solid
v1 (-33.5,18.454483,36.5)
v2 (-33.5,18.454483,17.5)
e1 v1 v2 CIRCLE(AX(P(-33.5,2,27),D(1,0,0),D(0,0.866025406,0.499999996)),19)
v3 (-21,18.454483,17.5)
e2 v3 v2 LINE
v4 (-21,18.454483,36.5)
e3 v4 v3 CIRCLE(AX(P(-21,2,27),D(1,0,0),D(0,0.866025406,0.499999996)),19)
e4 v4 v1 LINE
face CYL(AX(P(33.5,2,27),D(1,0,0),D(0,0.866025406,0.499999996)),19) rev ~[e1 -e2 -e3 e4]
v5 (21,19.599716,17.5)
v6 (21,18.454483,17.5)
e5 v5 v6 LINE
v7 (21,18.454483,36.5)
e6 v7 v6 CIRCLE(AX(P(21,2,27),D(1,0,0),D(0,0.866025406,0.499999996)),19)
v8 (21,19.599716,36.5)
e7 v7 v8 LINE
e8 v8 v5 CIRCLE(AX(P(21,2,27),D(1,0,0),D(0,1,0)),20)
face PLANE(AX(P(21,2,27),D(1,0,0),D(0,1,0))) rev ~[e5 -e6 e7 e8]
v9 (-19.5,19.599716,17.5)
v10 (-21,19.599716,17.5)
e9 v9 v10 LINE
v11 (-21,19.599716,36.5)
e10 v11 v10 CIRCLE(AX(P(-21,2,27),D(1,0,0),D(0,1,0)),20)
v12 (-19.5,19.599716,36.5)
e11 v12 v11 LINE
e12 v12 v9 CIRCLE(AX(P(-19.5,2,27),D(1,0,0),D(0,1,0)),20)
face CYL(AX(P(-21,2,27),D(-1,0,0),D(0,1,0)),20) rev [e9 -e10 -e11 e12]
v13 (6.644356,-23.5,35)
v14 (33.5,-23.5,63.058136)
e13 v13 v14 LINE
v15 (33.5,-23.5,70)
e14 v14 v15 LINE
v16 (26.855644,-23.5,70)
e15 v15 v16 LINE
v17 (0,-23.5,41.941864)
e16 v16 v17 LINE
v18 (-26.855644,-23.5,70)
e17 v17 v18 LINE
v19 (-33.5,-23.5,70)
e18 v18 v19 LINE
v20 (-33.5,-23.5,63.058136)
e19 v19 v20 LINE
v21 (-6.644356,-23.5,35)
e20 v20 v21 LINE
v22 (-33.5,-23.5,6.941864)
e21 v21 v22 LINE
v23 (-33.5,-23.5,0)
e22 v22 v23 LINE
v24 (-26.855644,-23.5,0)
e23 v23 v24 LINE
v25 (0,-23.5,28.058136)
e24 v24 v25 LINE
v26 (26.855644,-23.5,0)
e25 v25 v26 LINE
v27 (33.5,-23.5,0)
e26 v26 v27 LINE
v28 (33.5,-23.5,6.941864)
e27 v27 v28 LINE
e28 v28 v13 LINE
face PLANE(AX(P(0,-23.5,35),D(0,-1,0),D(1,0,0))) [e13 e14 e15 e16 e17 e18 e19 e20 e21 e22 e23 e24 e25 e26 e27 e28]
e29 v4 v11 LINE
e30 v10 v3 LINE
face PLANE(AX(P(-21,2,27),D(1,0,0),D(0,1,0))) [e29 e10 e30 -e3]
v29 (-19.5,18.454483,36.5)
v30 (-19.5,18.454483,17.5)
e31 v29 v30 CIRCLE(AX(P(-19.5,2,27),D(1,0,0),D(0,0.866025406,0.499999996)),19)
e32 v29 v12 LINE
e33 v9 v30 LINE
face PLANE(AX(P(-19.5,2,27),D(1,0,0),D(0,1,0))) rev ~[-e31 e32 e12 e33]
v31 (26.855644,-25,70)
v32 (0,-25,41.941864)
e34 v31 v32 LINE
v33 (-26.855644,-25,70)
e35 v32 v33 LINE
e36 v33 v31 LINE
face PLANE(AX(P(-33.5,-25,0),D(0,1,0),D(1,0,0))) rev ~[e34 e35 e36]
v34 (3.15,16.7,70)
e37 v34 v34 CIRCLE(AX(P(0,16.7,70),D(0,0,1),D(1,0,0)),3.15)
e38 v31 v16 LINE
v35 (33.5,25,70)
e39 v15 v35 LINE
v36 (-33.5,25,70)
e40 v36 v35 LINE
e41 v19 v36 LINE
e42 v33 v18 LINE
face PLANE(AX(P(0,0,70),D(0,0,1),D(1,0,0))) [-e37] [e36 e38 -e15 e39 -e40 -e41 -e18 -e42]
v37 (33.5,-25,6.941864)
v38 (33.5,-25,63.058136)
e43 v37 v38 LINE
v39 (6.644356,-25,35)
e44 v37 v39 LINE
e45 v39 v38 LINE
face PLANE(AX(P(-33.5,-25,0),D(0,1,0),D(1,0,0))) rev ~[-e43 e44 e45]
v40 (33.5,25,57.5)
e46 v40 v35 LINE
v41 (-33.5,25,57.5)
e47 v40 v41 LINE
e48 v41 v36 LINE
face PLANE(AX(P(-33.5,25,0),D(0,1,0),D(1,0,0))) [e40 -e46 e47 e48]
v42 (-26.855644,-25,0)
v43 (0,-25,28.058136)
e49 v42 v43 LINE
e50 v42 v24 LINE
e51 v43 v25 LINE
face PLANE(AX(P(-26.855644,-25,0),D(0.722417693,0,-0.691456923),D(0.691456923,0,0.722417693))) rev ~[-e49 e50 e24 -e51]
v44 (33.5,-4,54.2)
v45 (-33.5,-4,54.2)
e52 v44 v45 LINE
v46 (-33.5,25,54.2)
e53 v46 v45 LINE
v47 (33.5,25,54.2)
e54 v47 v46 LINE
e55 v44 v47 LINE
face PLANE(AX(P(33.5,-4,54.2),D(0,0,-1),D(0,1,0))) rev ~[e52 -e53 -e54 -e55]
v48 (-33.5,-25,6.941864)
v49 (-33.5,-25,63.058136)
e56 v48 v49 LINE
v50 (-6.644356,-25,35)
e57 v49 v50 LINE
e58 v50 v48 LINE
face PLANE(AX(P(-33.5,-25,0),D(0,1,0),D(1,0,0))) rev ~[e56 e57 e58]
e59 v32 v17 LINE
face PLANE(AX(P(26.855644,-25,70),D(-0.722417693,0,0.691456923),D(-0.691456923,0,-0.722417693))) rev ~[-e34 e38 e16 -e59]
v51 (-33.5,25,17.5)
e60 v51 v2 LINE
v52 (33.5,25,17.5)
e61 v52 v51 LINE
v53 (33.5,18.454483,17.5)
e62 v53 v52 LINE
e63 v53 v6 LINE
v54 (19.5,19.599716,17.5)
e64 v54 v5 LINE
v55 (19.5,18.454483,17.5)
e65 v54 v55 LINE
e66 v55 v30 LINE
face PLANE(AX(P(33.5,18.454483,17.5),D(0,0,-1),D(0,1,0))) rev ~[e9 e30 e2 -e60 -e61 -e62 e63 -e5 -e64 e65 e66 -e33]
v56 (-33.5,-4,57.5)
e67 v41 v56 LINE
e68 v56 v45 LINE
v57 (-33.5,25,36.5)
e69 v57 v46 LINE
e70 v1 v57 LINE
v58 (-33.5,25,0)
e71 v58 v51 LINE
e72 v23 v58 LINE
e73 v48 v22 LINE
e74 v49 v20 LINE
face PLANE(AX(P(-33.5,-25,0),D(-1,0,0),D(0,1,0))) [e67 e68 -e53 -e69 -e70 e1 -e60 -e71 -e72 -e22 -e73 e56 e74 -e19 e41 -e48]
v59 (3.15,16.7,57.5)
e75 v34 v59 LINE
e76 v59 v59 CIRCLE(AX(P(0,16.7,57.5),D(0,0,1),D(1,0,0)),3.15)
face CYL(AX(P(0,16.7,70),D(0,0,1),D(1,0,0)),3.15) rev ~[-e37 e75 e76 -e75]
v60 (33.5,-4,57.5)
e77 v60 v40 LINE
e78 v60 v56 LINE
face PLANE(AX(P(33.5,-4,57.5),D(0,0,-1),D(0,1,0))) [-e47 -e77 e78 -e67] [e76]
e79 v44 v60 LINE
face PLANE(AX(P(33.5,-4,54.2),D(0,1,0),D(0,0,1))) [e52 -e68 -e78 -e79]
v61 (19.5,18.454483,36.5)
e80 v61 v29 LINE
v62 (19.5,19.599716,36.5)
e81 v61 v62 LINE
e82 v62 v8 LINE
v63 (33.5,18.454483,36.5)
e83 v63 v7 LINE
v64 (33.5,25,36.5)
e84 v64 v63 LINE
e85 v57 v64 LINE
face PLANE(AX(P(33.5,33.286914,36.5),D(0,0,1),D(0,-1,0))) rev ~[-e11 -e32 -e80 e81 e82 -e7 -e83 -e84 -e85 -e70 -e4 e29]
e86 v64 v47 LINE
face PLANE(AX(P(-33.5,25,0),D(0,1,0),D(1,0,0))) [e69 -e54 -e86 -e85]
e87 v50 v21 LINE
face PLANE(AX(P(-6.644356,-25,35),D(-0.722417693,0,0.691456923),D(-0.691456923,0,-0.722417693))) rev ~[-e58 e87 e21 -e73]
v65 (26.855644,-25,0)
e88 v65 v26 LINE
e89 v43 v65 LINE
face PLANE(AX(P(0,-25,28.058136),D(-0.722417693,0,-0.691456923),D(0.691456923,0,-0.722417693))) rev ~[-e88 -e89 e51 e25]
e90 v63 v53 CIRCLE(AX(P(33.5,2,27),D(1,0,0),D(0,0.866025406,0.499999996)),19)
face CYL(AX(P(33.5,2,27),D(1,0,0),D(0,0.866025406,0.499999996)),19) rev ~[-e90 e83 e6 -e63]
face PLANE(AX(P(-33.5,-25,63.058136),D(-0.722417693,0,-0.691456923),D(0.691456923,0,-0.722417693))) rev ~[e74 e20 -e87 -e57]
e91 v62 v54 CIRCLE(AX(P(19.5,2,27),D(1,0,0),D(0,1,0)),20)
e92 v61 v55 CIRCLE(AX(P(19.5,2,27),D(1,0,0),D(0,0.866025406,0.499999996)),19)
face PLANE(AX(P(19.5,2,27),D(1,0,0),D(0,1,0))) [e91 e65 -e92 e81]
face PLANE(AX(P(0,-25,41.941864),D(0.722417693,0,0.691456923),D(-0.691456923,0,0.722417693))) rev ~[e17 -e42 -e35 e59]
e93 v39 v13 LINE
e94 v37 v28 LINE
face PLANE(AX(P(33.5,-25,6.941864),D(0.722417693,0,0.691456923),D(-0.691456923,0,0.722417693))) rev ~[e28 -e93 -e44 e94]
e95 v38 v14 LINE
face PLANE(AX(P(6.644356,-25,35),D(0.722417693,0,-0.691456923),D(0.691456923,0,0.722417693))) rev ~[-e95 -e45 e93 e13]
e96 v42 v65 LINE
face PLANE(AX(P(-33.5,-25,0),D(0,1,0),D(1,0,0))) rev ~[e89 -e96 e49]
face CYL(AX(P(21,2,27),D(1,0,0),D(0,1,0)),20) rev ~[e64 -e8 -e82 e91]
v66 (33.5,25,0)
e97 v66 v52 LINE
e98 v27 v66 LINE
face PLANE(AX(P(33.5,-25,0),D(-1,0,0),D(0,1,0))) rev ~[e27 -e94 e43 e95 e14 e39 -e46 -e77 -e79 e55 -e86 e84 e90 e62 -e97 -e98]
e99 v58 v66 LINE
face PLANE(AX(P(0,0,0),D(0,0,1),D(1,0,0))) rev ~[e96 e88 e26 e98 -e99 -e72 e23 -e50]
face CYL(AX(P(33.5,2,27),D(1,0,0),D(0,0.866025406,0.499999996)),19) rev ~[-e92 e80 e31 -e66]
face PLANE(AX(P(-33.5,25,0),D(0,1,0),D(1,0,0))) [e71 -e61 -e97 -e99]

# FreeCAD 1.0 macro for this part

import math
import FreeCAD as App
import Part
import Sketcher

V = App.Vector
Q = App.Units.Quantity

doc = App.newDocument("Part")
body = doc.addObject("PartDesign::Body", "Body")

sketch1 = body.newObject("Sketcher::SketchObject", "Sketch")
sketch1.AttachmentSupport = (doc.getObject("XY_Plane"), [""])
sketch1.MapMode = "FlatFace"
sketch1.addGeometry([
    Part.LineSegment(V(-34, 25, 0), V(-34, -25, 0)),
    Part.LineSegment(V(-34, -25, 0), V(34, -25, 0)),
    Part.LineSegment(V(34, -25, 0), V(34, 25, 0)),
    Part.LineSegment(V(34, 25, 0), V(-34, 25, 0)),
], False)
sketch1.addConstraint([
    Sketcher.Constraint("Coincident", 0, 2, 1, 1),
    Sketcher.Constraint("Coincident", 1, 2, 2, 1),
    Sketcher.Constraint("Coincident", 2, 2, 3, 1),
    Sketcher.Constraint("Coincident", 3, 2, 0, 1),
    Sketcher.Constraint("Vertical", 0),
    Sketcher.Constraint("Horizontal", 1),
    Sketcher.Constraint("Vertical", 2),
    Sketcher.Constraint("Horizontal", 3),
    Sketcher.Constraint("Symmetric", 0, 2, 2, 2, -1, 1),
    Sketcher.Constraint("DistanceX", 1, 1, 1, 2, Q("67 mm")),
    Sketcher.Constraint("DistanceY", 0, 2, 0, 1, Q("50 mm")),
])
pad1 = body.newObject("PartDesign::Pad", "Pad")
pad1.Profile = sketch1
pad1.Length = 70

sketch2 = body.newObject("Sketcher::SketchObject", "Sketch001")
sketch2.AttachmentSupport = (doc.getObject("XZ_Plane"), [""])
sketch2.MapMode = "FlatFace"
sketch2.AttachmentOffset = App.Placement(V(0, 0, 25), App.Rotation())
sketch2.addGeometry([
    Part.LineSegment(V(0, 42, 0), V(-27, 70, 0)),
    Part.LineSegment(V(-27, 70, 0), V(-34, 70, 0)),
    Part.LineSegment(V(-34, 70, 0), V(-34, 63, 0)),
    Part.LineSegment(V(-34, 63, 0), V(-7, 35, 0)),
    Part.LineSegment(V(-7, 35, 0), V(-34, 7, 0)),
    Part.LineSegment(V(-34, 7, 0), V(-34, 0, 0)),
    Part.LineSegment(V(-34, 0, 0), V(-27, 0, 0)),
    Part.LineSegment(V(-27, 0, 0), V(0, 28, 0)),
    Part.LineSegment(V(0, 28, 0), V(27, 0, 0)),
    Part.LineSegment(V(27, 0, 0), V(34, 0, 0)),
    Part.LineSegment(V(34, 0, 0), V(34, 7, 0)),
    Part.LineSegment(V(34, 7, 0), V(7, 35, 0)),
    Part.LineSegment(V(7, 35, 0), V(34, 63, 0)),
    Part.LineSegment(V(34, 63, 0), V(34, 70, 0)),
    Part.LineSegment(V(34, 70, 0), V(27, 70, 0)),
    Part.LineSegment(V(27, 70, 0), V(0, 42, 0)),
], False)
sketch2.addConstraint([
    Sketcher.Constraint("Coincident", 0, 2, 1, 1),
    Sketcher.Constraint("Coincident", 1, 2, 2, 1),
    Sketcher.Constraint("Coincident", 2, 2, 3, 1),
    Sketcher.Constraint("Coincident", 3, 2, 4, 1),
    Sketcher.Constraint("Coincident", 4, 2, 5, 1),
    Sketcher.Constraint("Coincident", 5, 2, 6, 1),
    Sketcher.Constraint("Coincident", 6, 2, 7, 1),
    Sketcher.Constraint("Coincident", 7, 2, 8, 1),
    Sketcher.Constraint("Coincident", 8, 2, 9, 1),
    Sketcher.Constraint("Coincident", 9, 2, 10, 1),
    Sketcher.Constraint("Coincident", 10, 2, 11, 1),
    Sketcher.Constraint("Coincident", 11, 2, 12, 1),
    Sketcher.Constraint("Coincident", 12, 2, 13, 1),
    Sketcher.Constraint("Coincident", 13, 2, 14, 1),
    Sketcher.Constraint("Coincident", 14, 2, 15, 1),
    Sketcher.Constraint("Coincident", 15, 2, 0, 1),
    Sketcher.Constraint("Horizontal", 1),
    Sketcher.Constraint("Vertical", 2),
    Sketcher.Constraint("Vertical", 5),
    Sketcher.Constraint("Horizontal", 6),
    Sketcher.Constraint("Horizontal", 9),
    Sketcher.Constraint("Vertical", 10),
    Sketcher.Constraint("Vertical", 13),
    Sketcher.Constraint("Horizontal", 14),
    Sketcher.Constraint("Symmetric", 6, 2, 8, 2, -1, 1),
    Sketcher.Constraint("Symmetric", 5, 2, 9, 2, -2),
    Sketcher.Constraint("Symmetric", 3, 2, 11, 2, -2),
    Sketcher.Constraint("Symmetric", 2, 2, 12, 2, -2),
    Sketcher.Constraint("Symmetric", 0, 2, 14, 2, -2),
    Sketcher.Constraint("PointOnObject", 7, 2, -2),
    Sketcher.Constraint("PointOnObject", 15, 2, -2),
    Sketcher.Constraint("Parallel", 0, 3),
    Sketcher.Constraint("Parallel", 4, 7),
    Sketcher.Constraint("Parallel", 3, 8),
    Sketcher.Constraint("Parallel", 8, 11),
    Sketcher.Constraint("Vertical", 2, 2, 4, 2),
    Sketcher.Constraint("Vertical", 0, 2, 6, 2),
    Sketcher.Constraint("Equal", 2, 5),
    Sketcher.Constraint("Equal", 0, 3),
    Sketcher.Constraint("DistanceY", -1, 1, 0, 2, Q("70 mm")),
    Sketcher.Constraint("DistanceX", 5, 2, 9, 2, Q("67 mm")),
    Sketcher.Constraint("DistanceX", 1, 2, 1, 1, Q("6.644356 mm")),
    Sketcher.Constraint("DistanceY", 2, 2, 2, 1, Q("6.941864 mm")),
])
pocket1 = body.newObject("PartDesign::Pocket", "Pocket")
pocket1.Profile = sketch2
pocket1.Length = 1.5

sketch3 = body.newObject("Sketcher::SketchObject", "Sketch002")
sketch3.AttachmentSupport = (doc.getObject("YZ_Plane"), [""])
sketch3.MapMode = "FlatFace"
sketch3.AttachmentOffset = App.Placement(V(0, 0, 33.5), App.Rotation())
sketch3.addGeometry([
    Part.LineSegment(V(33.3, 36.5, 0), V(18.5, 36.5, 0)),
    Part.ArcOfCircle(Part.Circle(V(2, 27, 0), V(0, 0, 1), 19), math.radians(30), math.radians(330)),
    Part.LineSegment(V(18.5, 17.5, 0), V(33.3, 17.5, 0)),
    Part.LineSegment(V(33.3, 17.5, 0), V(33.3, 36.5, 0)),
    Part.LineSegment(V(-4, 57.5, 0), V(-4, 54.2, 0)),
    Part.LineSegment(V(-4, 54.2, 0), V(54, 54.2, 0)),
    Part.LineSegment(V(54, 54.2, 0), V(54, 57.5, 0)),
    Part.LineSegment(V(54, 57.5, 0), V(-4, 57.5, 0)),
], False)
sketch3.addConstraint([
    Sketcher.Constraint("Coincident", 0, 2, 1, 1),
    Sketcher.Constraint("Coincident", 1, 2, 2, 1),
    Sketcher.Constraint("Coincident", 2, 2, 3, 1),
    Sketcher.Constraint("Coincident", 3, 2, 0, 1),
    Sketcher.Constraint("Coincident", 4, 2, 5, 1),
    Sketcher.Constraint("Coincident", 5, 2, 6, 1),
    Sketcher.Constraint("Coincident", 6, 2, 7, 1),
    Sketcher.Constraint("Coincident", 7, 2, 4, 1),
    Sketcher.Constraint("Horizontal", 0),
    Sketcher.Constraint("Horizontal", 2),
    Sketcher.Constraint("Vertical", 3),
    Sketcher.Constraint("Vertical", 4),
    Sketcher.Constraint("Horizontal", 5),
    Sketcher.Constraint("Vertical", 6),
    Sketcher.Constraint("Horizontal", 7),
    Sketcher.Constraint("Vertical", 0, 2, 1, 2),
    Sketcher.Constraint("Radius", 1, Q("19 mm")),
    Sketcher.Constraint("DistanceX", 5, 1, 5, 2, Q("58 mm")),
    Sketcher.Constraint("DistanceY", 3, 1, 3, 2, Q("19 mm")),
    Sketcher.Constraint("DistanceY", 4, 2, 4, 1, Q("3.3 mm")),
    Sketcher.Constraint("DistanceX", -1, 1, 1, 3, Q("2 mm")),
    Sketcher.Constraint("DistanceY", -1, 1, 1, 3, Q("27 mm")),
    Sketcher.Constraint("DistanceX", 4, 2, -1, 1, Q("4 mm")),
    Sketcher.Constraint("DistanceY", 3, 2, 6, 2, Q("21 mm")),
    Sketcher.Constraint("DistanceX", 0, 2, 0, 1, Q("14.832431 mm")),
])
pocket2 = body.newObject("PartDesign::Pocket", "Pocket001")
pocket2.Profile = sketch3
pocket2.Type = "ThroughAll"

sketch4 = body.newObject("Sketcher::SketchObject", "Sketch003")
sketch4.AttachmentSupport = (doc.getObject("YZ_Plane"), [""])
sketch4.MapMode = "FlatFace"
sketch4.AttachmentOffset = App.Placement(V(0, 0, 33.5), App.Rotation())
sketch4.addGeometry([
    Part.LineSegment(V(33.3, 36.5, 0), V(18.5, 36.5, 0)),
    Part.ArcOfCircle(Part.Circle(V(2, 27, 0), V(0, 0, 1), 19), math.radians(30), math.radians(330)),
    Part.LineSegment(V(18.5, 17.5, 0), V(33.3, 17.5, 0)),
    Part.LineSegment(V(33.3, 17.5, 0), V(33.3, 36.5, 0)),
    Part.LineSegment(V(-4, 57.5, 0), V(-4, 54.2, 0)),
    Part.LineSegment(V(-4, 54.2, 0), V(54, 54.2, 0)),
    Part.LineSegment(V(54, 54.2, 0), V(54, 57.5, 0)),
    Part.LineSegment(V(54, 57.5, 0), V(-4, 57.5, 0)),
], False)
sketch4.addConstraint([
    Sketcher.Constraint("Coincident", 0, 2, 1, 1),
    Sketcher.Constraint("Coincident", 1, 2, 2, 1),
    Sketcher.Constraint("Coincident", 2, 2, 3, 1),
    Sketcher.Constraint("Coincident", 3, 2, 0, 1),
    Sketcher.Constraint("Coincident", 4, 2, 5, 1),
    Sketcher.Constraint("Coincident", 5, 2, 6, 1),
    Sketcher.Constraint("Coincident", 6, 2, 7, 1),
    Sketcher.Constraint("Coincident", 7, 2, 4, 1),
    Sketcher.Constraint("Horizontal", 0),
    Sketcher.Constraint("Horizontal", 2),
    Sketcher.Constraint("Vertical", 3),
    Sketcher.Constraint("Vertical", 4),
    Sketcher.Constraint("Horizontal", 5),
    Sketcher.Constraint("Vertical", 6),
    Sketcher.Constraint("Horizontal", 7),
    Sketcher.Constraint("Vertical", 0, 2, 1, 2),
    Sketcher.Constraint("Radius", 1, Q("19 mm")),
    Sketcher.Constraint("DistanceX", 5, 1, 5, 2, Q("58 mm")),
    Sketcher.Constraint("DistanceY", 3, 1, 3, 2, Q("19 mm")),
    Sketcher.Constraint("DistanceY", 4, 2, 4, 1, Q("3.3 mm")),
    Sketcher.Constraint("DistanceX", -1, 1, 1, 3, Q("2 mm")),
    Sketcher.Constraint("DistanceY", -1, 1, 1, 3, Q("27 mm")),
    Sketcher.Constraint("DistanceX", 4, 2, -1, 1, Q("4 mm")),
    Sketcher.Constraint("DistanceY", 3, 2, 6, 2, Q("21 mm")),
    Sketcher.Constraint("DistanceX", 0, 2, 0, 1, Q("14.832431 mm")),
])
pocket3 = body.newObject("PartDesign::Pocket", "Pocket002")
pocket3.Profile = sketch4
pocket3.Type = "ThroughAll"

sketch5 = body.newObject("Sketcher::SketchObject", "Sketch004")
sketch5.AttachmentSupport = (doc.getObject("XY_Plane"), [""])
sketch5.MapMode = "FlatFace"
sketch5.AttachmentOffset = App.Placement(V(0, 0, 70), App.Rotation())
sketch5.addGeometry(Part.Circle(V(0, 16.7, 0), V(0, 0, 1), 3.1), False)
sketch5.addConstraint([
    Sketcher.Constraint("PointOnObject", 0, 3, -2),
    Sketcher.Constraint("Diameter", 0, Q("6.3 mm")),
    Sketcher.Constraint("DistanceY", -1, 1, 0, 3, Q("16.7 mm")),
])
pocket4 = body.newObject("PartDesign::Pocket", "Pocket003")
pocket4.Profile = sketch5
pocket4.Length = 12.5

sketch6 = body.newObject("Sketcher::SketchObject", "Sketch005")
sketch6.AttachmentSupport = (doc.getObject("YZ_Plane"), [""])
sketch6.MapMode = "FlatFace"
sketch6.AttachmentOffset = App.Placement(V(0, 0, 21), App.Rotation())
sketch6.addGeometry(Part.Circle(V(2, 27, 0), V(0, 0, 1), 20), False)
sketch6.addConstraint([
    Sketcher.Constraint("Diameter", 0, Q("40 mm")),
    Sketcher.Constraint("DistanceX", -1, 1, 0, 3, Q("2 mm")),
    Sketcher.Constraint("DistanceY", -1, 1, 0, 3, Q("27 mm")),
])
pocket5 = body.newObject("PartDesign::Pocket", "Pocket004")
pocket5.Profile = sketch6
pocket5.Length = 1.5

sketch7 = body.newObject("Sketcher::SketchObject", "Sketch006")
sketch7.AttachmentSupport = (doc.getObject("YZ_Plane"), [""])
sketch7.MapMode = "FlatFace"
sketch7.AttachmentOffset = App.Placement(V(0, 0, -21), App.Rotation())
sketch7.addGeometry(Part.Circle(V(2, 27, 0), V(0, 0, 1), 20), False)
sketch7.addConstraint([
    Sketcher.Constraint("Diameter", 0, Q("40 mm")),
    Sketcher.Constraint("DistanceX", -1, 1, 0, 3, Q("2 mm")),
    Sketcher.Constraint("DistanceY", -1, 1, 0, 3, Q("27 mm")),
])
pocket6 = body.newObject("PartDesign::Pocket", "Pocket005")
pocket6.Profile = sketch7
pocket6.Length = 1.5
pocket6.Reversed = True

doc.recompute()
